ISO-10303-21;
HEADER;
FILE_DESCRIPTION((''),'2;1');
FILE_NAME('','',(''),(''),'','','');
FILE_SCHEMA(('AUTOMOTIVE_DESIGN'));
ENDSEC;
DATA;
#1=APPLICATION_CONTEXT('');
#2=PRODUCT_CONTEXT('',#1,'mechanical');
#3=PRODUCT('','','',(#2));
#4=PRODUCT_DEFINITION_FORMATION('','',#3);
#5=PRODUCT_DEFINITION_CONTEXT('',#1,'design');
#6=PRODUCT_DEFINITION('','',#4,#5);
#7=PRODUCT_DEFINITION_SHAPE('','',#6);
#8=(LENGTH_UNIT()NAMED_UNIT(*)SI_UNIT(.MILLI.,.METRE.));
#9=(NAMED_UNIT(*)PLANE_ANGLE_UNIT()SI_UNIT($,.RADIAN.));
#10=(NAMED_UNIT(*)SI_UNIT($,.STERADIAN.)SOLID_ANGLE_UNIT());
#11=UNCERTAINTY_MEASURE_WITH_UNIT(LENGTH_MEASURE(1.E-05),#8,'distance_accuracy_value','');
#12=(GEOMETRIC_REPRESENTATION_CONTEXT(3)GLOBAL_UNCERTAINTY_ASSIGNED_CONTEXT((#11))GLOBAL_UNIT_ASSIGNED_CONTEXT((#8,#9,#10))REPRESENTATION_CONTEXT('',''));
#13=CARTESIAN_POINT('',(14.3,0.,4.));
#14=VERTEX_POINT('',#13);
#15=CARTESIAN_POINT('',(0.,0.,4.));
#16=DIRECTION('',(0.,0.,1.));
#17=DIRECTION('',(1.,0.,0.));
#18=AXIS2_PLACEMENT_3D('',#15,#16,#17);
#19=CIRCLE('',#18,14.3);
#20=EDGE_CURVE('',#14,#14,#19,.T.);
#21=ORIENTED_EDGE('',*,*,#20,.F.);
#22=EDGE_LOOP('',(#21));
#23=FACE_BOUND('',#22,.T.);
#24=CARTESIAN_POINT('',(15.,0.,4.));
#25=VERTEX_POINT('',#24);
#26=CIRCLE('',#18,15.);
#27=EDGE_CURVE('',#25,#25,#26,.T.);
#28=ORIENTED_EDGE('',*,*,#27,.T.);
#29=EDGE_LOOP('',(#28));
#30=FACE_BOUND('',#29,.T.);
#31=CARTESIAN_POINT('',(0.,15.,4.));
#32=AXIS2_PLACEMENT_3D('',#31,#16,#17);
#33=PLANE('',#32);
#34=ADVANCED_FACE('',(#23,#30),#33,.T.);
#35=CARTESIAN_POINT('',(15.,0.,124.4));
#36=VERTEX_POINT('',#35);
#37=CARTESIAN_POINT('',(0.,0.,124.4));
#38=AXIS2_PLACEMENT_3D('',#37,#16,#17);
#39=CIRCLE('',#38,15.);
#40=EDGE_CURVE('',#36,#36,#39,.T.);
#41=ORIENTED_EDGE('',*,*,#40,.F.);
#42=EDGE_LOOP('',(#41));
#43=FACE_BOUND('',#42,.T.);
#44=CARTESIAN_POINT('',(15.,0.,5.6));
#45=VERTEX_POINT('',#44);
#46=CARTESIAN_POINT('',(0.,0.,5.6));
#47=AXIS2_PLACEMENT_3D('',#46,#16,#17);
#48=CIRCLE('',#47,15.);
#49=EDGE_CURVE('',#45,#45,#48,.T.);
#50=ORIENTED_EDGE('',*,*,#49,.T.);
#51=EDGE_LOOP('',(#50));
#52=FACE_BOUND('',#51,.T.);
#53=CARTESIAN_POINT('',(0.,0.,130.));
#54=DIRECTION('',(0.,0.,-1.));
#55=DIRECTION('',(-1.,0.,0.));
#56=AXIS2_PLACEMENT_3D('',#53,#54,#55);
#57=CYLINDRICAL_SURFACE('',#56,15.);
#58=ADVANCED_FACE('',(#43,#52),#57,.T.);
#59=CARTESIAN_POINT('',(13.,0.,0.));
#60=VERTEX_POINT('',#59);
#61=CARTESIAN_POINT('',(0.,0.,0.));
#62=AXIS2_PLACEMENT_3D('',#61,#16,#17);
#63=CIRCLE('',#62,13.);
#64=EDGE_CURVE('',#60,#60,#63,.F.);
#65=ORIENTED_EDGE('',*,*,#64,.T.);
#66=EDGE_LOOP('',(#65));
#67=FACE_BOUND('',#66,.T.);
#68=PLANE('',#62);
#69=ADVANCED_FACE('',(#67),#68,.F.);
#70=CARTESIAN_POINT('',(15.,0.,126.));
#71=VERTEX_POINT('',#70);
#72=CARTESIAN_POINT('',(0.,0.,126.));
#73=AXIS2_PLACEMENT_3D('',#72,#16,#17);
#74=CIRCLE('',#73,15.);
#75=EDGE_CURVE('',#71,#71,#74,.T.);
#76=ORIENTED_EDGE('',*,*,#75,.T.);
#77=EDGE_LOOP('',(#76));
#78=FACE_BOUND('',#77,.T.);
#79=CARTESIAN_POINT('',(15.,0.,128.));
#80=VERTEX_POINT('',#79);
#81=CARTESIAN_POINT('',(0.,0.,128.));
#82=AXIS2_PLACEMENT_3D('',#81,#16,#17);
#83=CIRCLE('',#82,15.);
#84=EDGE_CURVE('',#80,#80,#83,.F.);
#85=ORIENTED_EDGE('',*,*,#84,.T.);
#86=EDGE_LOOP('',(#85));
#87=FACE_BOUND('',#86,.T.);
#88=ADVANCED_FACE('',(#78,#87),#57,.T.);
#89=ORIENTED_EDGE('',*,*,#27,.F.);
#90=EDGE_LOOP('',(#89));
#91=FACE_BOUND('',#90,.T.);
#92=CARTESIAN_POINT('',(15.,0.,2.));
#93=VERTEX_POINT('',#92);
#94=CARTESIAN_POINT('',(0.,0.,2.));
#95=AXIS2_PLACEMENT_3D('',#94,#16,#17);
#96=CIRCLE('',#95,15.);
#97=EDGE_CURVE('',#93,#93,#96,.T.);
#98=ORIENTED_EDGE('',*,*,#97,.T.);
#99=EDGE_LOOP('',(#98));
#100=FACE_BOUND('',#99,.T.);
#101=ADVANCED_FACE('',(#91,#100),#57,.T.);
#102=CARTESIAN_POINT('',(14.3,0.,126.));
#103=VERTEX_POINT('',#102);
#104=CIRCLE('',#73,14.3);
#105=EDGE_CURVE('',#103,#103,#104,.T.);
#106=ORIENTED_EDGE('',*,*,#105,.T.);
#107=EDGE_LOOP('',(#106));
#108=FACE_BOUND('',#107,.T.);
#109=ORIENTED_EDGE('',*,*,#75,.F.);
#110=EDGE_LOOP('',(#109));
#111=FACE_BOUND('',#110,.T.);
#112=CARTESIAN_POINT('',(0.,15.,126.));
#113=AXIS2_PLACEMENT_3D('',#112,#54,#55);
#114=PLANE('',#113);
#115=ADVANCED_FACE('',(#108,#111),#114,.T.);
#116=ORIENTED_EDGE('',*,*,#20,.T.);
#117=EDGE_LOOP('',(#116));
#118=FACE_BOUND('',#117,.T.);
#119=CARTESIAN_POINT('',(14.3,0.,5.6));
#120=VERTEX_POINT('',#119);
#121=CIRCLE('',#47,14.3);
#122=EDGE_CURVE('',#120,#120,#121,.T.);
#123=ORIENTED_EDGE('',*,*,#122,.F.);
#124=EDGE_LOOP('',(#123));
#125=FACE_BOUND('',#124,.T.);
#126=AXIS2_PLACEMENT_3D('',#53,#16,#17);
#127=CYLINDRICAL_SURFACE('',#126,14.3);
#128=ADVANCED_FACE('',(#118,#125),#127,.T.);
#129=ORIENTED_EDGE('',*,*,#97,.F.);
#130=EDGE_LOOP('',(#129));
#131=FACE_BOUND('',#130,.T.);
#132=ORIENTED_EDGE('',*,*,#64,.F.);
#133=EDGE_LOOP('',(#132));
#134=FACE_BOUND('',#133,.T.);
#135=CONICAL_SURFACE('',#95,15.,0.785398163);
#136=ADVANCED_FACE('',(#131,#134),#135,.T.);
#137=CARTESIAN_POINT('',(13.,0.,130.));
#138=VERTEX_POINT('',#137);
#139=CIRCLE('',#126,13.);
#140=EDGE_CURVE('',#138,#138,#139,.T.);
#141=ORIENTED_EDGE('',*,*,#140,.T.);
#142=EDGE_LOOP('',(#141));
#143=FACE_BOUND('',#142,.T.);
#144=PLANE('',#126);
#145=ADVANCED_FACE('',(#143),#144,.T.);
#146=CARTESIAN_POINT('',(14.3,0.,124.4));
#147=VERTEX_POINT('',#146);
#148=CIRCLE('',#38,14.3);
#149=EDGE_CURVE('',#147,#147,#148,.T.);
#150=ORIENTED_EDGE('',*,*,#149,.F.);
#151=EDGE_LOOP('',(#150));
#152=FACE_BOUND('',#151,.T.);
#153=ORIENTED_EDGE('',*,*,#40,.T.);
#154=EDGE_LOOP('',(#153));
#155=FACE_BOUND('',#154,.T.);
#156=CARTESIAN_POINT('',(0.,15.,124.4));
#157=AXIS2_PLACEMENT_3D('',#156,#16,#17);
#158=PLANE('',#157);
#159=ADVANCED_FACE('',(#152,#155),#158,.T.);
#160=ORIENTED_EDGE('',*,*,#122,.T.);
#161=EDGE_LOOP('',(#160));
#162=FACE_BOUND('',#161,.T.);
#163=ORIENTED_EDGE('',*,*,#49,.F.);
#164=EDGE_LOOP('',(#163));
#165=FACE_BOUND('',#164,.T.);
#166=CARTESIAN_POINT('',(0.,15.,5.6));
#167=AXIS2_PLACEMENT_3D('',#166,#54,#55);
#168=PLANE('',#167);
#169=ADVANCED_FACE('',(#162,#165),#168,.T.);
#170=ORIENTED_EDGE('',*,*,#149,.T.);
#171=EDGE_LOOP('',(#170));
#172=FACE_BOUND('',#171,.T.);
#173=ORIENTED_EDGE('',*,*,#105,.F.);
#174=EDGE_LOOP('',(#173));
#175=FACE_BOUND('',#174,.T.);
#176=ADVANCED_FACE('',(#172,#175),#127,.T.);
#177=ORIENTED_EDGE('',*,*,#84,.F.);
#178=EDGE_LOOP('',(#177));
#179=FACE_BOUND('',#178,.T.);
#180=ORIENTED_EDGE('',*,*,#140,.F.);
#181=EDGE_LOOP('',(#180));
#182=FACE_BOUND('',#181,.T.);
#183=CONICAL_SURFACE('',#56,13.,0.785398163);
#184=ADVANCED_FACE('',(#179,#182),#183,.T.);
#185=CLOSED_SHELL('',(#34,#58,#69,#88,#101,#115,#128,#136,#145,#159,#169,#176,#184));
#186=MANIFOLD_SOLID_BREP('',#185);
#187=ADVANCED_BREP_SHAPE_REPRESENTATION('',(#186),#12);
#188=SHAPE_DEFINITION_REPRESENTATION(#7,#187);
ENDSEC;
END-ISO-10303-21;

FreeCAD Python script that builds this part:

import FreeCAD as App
import Part
import Sketcher
Q = App.Units.Quantity


def edges_at(feature, points):
    """Names of the edges that pass closest to the given points."""
    edges = feature.Shape.Edges
    near = lambda p: min(range(len(edges)), key=lambda i: edges[i].distToShape(Part.Vertex(*p))[0])
    return sorted({f"Edge{near(p) + 1}" for p in points})


def add_polygon(sketch, points):
    """Adds a closed chain of lines whose ends are joined by coincident constraints."""
    first, n = sketch.GeometryCount, len(points)
    for a, b in zip(points, points[1:] + points[:1]):
        sketch.addGeometry(Part.LineSegment(App.Vector(*a, 0), App.Vector(*b, 0)), False)
    for i in range(n):
        sketch.addConstraint(Sketcher.Constraint("Coincident", first + i, 2, first + (i + 1) % n, 1))

doc = App.newDocument("Part")
params = doc.addObject("Spreadsheet::Sheet", "Params")
for row, (alias, value) in enumerate([
    ("sketch1_diameter", "30 mm"),
    ("pad1_length", "130 mm"),
    ("chamfer_size", "2 mm"),
    ("sketch2_width", "0.7 mm"),
    ("sketch2_height", "1.6 mm"),
    ("groove_angle", "360 deg"),
], start=1):
    params.set(f"A{row}", alias)
    params.set(f"B{row}", "=" + value)
    params.setAlias(f"B{row}", alias)

body = doc.addObject("PartDesign::Body", "Body")

# Sketch on XY plane
sketch1 = body.newObject("Sketcher::SketchObject", "Sketch")
sketch1.AttachmentSupport = (doc.getObject("XY_Plane"), [""])
sketch1.MapMode = "FlatFace"
sketch1.addGeometry(Part.Circle(App.Vector(0, 0, 0), App.Vector(0, 0, 1), 15), False)
sketch1.addConstraint(Sketcher.Constraint("Coincident", 0, 3, -1, 1))
sketch1.addConstraint(Sketcher.Constraint("Diameter", 0, Q("30 mm")))
sketch1.setExpression("Constraints[1]", "Params.sketch1_diameter")
pad1 = body.newObject("PartDesign::Pad", "Pad")
pad1.Profile = sketch1
pad1.setExpression("Length", "Params.pad1_length")
doc.recompute()

chamfer = body.newObject("PartDesign::Chamfer", "Chamfer")
chamfer.Base = (pad1, edges_at(pad1, [(-15, 0, 0), (-15, 0, 130)]))
chamfer.setExpression("Size", "Params.chamfer_size")

# Sketch on YZ plane
sketch2 = body.newObject("Sketcher::SketchObject", "Sketch001")
sketch2.AttachmentSupport = (doc.getObject("YZ_Plane"), [""])
sketch2.MapMode = "FlatFace"
add_polygon(sketch2, [(15, 126), (14.3, 126), (14.3, 124.4), (15, 124.4)])  # lines 0-3
add_polygon(sketch2, [(15, 5.6), (14.3, 5.6), (14.3, 4), (15, 4)])  # lines 4-7
sketch2.addConstraint(Sketcher.Constraint("Horizontal", 0))
sketch2.addConstraint(Sketcher.Constraint("Vertical", 1))
sketch2.addConstraint(Sketcher.Constraint("Horizontal", 2))
sketch2.addConstraint(Sketcher.Constraint("Vertical", 3))
sketch2.addConstraint(Sketcher.Constraint("Horizontal", 4))
sketch2.addConstraint(Sketcher.Constraint("Vertical", 5))
sketch2.addConstraint(Sketcher.Constraint("Horizontal", 6))
sketch2.addConstraint(Sketcher.Constraint("Vertical", 7))
sketch2.addConstraint(Sketcher.Constraint("Vertical", 1, 2, 4, 2))
sketch2.addConstraint(Sketcher.Constraint("Vertical", 3, 2, 6, 2))
sketch2.addConstraint(Sketcher.Constraint("Equal", 3, 5))
sketch2.addConstraint(Sketcher.Constraint("DistanceX", 0, 2, 0, 1, Q("0.7 mm")))
sketch2.addConstraint(Sketcher.Constraint("DistanceY", 1, 2, 1, 1, Q("1.6 mm")))
sketch2.addConstraint(Sketcher.Constraint("DistanceY", -1, 1, 0, 2, Q("126 mm")))
sketch2.addConstraint(Sketcher.Constraint("DistanceX", -1, 1, 2, 2, Q("15 mm")))
sketch2.addConstraint(Sketcher.Constraint("DistanceY", -1, 1, 5, 2, Q("4 mm")))
sketch2.setExpression("Constraints[19]", "Params.sketch2_width")
sketch2.setExpression("Constraints[20]", "Params.sketch2_height")
groove = body.newObject("PartDesign::Groove", "Groove")
groove.Profile = sketch2
groove.ReferenceAxis = (sketch2, ["V_Axis"])
groove.setExpression("Angle", "Params.groove_angle")

doc.recompute()
